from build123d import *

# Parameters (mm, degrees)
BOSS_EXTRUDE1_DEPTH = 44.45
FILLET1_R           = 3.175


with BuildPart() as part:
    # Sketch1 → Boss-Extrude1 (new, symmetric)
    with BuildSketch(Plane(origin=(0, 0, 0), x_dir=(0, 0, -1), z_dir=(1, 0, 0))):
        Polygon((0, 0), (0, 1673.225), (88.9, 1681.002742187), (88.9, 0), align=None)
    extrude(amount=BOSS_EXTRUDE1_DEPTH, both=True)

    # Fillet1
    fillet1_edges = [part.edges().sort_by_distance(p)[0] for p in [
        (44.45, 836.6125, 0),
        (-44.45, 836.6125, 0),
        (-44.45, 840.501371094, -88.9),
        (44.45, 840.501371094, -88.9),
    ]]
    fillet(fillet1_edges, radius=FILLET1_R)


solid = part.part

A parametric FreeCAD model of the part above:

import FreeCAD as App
import Part
import Sketcher

V = App.Vector
Q = App.Units.Quantity


def edges_at(feature, points):
    """Names of the edges that pass closest to the given points."""
    edges = feature.Shape.Edges
    near = lambda p: min(range(len(edges)), key=lambda i: edges[i].distToShape(Part.Vertex(*p))[0])
    return sorted({f"Edge{near(p) + 1}" for p in points})


def add_polygon(sketch, points):
    """Adds a closed chain of lines whose ends are joined by coincident constraints."""
    first, n = sketch.GeometryCount, len(points)
    for a, b in zip(points, points[1:] + points[:1]):
        sketch.addGeometry(Part.LineSegment(App.Vector(*a, 0), App.Vector(*b, 0)), False)
    for i in range(n):
        sketch.addConstraint(Sketcher.Constraint("Coincident", first + i, 2, first + (i + 1) % n, 1))

doc = App.newDocument("Part")
body = doc.addObject("PartDesign::Body", "Body")

# Sketch on YZ plane
sketch1 = body.newObject("Sketcher::SketchObject", "Sketch")
sketch1.AttachmentSupport = (doc.getObject("YZ_Plane"), [""])
sketch1.MapMode = "FlatFace"
add_polygon(sketch1, [(1673.225, 0), (0, 0), (0, -88.9), (1681.002742, -88.9)])  # lines 0-3
sketch1.addConstraint(Sketcher.Constraint("Horizontal", 0))
sketch1.addConstraint(Sketcher.Constraint("Vertical", 1))
sketch1.addConstraint(Sketcher.Constraint("Horizontal", 2))
sketch1.addConstraint(Sketcher.Constraint("Coincident", 0, 2, -1, 1))
sketch1.addConstraint(Sketcher.Constraint("DistanceY", 1, 2, 1, 1, Q("3.5 in")))
sketch1.addConstraint(Sketcher.Constraint("Angle", 3, Q("95 deg")))
sketch1.addConstraint(Sketcher.Constraint("DistanceX", 0, 2, 0, 1, Q("65.875 in")))
pad1 = body.newObject("PartDesign::Pad", "Pad")
pad1.Profile = sketch1
pad1.Length = Q("3.5 in")
pad1.Midplane = True
doc.recompute()

fillet = body.newObject("PartDesign::Fillet", "Fillet")
fillet.Base = (pad1, edges_at(pad1, [
    (44.45, 836.612, 0),
    (-44.45, 836.612, 0),
    (-44.45, 840.501, -88.9),
    (44.45, 840.501, -88.9),
]))
fillet.Radius = Q("0.125 in")

doc.recompute()
